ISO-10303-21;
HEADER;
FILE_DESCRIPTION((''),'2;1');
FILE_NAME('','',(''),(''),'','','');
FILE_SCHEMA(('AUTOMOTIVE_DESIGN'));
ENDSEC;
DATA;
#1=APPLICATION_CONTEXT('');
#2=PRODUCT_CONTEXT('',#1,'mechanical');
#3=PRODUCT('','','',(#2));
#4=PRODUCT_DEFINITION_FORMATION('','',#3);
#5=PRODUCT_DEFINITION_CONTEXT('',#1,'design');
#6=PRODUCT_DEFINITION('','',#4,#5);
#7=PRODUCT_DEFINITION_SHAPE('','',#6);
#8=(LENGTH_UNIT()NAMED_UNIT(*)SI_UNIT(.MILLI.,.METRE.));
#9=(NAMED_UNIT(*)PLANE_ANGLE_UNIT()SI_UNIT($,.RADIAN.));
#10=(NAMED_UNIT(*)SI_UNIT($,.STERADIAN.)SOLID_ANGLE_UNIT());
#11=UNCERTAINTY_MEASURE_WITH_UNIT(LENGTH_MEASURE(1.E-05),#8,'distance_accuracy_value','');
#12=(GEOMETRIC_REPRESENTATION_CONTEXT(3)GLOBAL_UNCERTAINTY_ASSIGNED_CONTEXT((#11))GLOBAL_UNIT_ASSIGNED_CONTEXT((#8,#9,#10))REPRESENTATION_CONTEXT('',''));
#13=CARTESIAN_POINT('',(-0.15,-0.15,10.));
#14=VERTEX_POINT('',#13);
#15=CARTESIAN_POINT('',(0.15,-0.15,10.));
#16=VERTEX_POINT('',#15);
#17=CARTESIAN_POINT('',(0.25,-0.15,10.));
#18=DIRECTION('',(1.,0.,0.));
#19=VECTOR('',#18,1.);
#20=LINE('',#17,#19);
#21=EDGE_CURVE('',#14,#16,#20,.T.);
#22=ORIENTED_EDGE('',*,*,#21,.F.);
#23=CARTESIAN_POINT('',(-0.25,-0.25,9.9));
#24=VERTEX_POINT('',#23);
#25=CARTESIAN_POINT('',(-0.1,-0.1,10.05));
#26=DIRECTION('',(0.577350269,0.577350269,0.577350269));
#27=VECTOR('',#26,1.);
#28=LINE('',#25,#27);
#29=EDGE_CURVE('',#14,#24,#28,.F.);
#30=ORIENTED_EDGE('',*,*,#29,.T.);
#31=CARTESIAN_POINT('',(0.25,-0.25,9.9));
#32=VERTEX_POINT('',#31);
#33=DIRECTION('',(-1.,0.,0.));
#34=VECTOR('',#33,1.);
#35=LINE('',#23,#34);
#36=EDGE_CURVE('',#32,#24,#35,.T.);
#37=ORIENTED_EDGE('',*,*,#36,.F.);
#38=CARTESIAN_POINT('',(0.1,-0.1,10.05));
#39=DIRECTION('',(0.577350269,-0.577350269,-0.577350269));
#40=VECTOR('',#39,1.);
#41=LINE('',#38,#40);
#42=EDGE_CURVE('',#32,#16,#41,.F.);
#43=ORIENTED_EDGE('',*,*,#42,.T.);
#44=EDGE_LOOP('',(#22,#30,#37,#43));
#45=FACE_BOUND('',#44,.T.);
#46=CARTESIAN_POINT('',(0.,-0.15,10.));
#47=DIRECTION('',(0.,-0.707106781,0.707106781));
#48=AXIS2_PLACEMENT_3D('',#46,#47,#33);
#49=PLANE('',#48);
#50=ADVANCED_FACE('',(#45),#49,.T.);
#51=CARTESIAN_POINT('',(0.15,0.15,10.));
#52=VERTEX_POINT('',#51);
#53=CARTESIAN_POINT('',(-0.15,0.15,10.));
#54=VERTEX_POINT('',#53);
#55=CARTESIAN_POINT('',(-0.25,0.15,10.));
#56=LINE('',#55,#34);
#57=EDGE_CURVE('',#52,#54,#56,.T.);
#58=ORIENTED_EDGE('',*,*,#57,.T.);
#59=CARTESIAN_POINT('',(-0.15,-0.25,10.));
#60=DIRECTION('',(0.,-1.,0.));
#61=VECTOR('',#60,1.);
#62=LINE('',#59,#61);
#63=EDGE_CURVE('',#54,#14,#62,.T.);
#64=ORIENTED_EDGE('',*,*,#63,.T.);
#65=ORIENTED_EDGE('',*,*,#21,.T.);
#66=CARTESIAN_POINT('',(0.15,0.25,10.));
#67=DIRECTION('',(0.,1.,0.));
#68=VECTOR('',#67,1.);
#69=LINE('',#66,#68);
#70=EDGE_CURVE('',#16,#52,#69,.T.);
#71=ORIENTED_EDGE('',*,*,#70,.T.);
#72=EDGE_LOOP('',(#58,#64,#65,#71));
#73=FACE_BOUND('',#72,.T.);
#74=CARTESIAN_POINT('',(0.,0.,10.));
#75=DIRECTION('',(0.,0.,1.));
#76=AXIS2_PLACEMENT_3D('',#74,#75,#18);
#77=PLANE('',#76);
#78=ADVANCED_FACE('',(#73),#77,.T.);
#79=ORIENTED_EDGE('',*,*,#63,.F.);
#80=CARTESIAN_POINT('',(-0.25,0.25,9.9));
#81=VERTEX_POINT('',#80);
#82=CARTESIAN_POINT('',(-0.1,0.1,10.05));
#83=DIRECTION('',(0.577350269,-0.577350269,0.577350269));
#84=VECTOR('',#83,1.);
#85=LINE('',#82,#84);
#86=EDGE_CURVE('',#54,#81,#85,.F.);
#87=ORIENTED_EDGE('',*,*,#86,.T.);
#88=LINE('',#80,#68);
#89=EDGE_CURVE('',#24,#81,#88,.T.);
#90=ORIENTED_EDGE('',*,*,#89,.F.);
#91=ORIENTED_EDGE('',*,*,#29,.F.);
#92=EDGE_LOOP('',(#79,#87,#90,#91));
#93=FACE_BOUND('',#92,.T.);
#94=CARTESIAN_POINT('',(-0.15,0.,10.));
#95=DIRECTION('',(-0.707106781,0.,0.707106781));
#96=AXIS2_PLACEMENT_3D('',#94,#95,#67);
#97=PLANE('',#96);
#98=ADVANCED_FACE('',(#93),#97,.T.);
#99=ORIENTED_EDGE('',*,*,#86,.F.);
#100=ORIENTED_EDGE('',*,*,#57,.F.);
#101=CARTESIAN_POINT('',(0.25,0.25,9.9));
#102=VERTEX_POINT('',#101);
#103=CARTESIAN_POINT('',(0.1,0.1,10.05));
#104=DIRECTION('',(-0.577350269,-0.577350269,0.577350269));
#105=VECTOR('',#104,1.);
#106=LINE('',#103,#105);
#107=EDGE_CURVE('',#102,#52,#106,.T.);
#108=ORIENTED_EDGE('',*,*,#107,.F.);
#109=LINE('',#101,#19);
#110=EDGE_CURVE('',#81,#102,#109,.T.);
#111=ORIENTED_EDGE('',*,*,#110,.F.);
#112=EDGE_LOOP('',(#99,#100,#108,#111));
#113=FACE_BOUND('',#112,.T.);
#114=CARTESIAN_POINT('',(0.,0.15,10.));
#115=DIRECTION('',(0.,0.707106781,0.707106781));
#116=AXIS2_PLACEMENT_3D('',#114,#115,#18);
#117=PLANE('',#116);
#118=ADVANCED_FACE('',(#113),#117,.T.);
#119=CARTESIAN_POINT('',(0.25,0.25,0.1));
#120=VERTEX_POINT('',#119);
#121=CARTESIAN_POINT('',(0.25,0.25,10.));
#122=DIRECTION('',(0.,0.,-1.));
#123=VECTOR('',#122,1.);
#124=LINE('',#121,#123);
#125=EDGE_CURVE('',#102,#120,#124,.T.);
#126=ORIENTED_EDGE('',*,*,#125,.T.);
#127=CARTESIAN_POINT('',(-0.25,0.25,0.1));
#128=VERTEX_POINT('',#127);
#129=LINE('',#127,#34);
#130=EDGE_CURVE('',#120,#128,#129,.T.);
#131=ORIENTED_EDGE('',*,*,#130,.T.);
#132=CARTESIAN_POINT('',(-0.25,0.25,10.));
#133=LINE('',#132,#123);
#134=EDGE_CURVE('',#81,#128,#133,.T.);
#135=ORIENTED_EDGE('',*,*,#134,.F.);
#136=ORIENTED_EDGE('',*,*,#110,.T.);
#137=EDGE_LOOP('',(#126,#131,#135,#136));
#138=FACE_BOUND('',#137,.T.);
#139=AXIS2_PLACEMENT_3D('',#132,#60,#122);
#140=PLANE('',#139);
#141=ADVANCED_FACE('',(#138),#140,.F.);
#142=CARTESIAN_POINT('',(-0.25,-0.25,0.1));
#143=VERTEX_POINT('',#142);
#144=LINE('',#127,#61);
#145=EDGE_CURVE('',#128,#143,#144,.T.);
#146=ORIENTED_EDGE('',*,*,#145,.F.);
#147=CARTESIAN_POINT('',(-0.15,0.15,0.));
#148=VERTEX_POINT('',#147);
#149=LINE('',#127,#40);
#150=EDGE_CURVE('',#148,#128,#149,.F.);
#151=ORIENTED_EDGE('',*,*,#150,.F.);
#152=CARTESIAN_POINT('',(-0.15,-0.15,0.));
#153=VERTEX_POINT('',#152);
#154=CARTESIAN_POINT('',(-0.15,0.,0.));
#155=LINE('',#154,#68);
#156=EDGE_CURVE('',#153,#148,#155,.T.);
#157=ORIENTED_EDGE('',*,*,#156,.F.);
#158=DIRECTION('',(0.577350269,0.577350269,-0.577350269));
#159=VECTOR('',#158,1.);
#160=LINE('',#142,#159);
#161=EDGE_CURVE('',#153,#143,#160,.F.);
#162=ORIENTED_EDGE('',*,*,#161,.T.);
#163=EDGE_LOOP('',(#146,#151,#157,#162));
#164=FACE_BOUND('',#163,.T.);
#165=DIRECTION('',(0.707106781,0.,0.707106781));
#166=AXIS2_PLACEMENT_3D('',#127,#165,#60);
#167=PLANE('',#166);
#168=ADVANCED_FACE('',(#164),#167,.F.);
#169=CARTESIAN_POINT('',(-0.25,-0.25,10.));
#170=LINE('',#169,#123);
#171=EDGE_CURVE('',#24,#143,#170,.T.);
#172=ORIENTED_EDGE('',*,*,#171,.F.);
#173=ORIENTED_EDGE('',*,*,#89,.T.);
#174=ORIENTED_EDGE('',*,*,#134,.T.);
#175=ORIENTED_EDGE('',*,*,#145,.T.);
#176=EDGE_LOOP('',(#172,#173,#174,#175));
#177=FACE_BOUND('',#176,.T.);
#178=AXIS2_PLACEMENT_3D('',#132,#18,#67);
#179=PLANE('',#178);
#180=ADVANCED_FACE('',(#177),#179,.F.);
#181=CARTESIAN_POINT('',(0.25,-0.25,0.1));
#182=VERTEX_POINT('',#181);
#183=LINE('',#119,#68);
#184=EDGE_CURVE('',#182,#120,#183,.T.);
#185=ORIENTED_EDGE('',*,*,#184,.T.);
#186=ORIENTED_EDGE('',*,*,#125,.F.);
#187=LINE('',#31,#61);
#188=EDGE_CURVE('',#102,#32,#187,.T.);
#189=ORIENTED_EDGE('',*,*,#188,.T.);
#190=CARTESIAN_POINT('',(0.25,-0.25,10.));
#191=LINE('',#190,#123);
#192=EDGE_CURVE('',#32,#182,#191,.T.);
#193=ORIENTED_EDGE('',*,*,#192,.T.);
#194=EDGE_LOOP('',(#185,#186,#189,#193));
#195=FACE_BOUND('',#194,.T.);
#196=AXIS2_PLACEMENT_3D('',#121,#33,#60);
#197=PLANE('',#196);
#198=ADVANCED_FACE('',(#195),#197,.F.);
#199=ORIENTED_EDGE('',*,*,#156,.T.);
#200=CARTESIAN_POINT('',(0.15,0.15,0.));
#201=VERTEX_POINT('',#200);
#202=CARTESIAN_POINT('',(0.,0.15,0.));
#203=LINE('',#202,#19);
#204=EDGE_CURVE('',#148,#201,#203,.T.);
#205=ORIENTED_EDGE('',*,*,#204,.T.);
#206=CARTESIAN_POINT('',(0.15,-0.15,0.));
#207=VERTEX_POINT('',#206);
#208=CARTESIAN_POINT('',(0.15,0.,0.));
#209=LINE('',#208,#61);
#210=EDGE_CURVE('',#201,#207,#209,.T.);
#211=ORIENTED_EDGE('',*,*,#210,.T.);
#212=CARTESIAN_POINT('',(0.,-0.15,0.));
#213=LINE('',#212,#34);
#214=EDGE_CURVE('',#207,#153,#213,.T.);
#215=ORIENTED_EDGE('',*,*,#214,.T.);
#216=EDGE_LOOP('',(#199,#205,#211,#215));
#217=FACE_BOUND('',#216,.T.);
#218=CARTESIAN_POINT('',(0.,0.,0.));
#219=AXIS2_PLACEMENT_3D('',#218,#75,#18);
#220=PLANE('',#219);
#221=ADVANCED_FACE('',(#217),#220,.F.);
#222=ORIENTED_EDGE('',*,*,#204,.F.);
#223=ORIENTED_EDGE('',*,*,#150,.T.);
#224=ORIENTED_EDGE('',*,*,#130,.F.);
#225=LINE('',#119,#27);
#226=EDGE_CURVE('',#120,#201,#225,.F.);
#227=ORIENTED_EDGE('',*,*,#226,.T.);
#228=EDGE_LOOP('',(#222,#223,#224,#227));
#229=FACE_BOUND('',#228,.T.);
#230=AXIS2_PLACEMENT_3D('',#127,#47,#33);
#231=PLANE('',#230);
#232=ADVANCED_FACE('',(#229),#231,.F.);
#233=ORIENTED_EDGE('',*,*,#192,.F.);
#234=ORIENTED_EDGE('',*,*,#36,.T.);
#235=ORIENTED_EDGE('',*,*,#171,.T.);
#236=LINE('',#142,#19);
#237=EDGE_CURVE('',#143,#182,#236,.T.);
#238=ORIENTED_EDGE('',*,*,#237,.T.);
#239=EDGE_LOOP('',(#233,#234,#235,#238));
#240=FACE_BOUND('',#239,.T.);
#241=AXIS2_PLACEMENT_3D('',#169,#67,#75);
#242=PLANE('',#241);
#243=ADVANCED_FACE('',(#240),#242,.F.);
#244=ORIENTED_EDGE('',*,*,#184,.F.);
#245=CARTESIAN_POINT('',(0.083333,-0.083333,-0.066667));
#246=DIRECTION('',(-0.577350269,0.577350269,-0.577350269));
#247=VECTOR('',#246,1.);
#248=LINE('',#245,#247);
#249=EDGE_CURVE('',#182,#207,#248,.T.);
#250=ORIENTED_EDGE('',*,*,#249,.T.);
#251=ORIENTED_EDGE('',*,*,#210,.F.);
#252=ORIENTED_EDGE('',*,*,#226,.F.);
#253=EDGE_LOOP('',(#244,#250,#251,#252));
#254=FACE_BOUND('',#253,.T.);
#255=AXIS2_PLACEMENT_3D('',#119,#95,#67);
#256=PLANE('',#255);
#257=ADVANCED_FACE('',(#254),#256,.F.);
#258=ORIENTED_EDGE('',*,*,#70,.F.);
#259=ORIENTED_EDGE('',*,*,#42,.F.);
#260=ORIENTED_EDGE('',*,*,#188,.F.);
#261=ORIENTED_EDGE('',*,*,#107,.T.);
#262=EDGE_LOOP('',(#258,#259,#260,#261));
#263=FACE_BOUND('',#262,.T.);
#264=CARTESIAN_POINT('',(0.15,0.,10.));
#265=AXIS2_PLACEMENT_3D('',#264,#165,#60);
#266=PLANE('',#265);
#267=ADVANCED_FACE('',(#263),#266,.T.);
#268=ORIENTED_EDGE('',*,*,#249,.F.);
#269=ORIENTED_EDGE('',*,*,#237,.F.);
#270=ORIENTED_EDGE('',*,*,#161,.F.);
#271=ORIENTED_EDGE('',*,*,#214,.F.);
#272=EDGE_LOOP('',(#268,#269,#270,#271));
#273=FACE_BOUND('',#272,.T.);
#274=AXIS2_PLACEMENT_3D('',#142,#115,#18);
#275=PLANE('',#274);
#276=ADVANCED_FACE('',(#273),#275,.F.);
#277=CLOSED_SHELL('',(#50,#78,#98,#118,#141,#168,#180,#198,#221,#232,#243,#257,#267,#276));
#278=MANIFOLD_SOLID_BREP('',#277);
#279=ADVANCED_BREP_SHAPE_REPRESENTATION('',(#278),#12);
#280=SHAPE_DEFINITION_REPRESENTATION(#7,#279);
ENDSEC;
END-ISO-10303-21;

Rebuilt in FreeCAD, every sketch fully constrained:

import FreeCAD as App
import Part
import Sketcher
from FreeCAD import Vector


def edges_at(feature, points):
    """Names of the edges that pass closest to the given points."""
    edges = feature.Shape.Edges
    near = lambda p: min(range(len(edges)), key=lambda i: edges[i].distToShape(Part.Vertex(*p))[0])
    return sorted({f"Edge{near(p) + 1}" for p in points})


def add_polygon(sketch, points):
    """Adds a closed chain of lines whose ends are joined by coincident constraints."""
    first, n = sketch.GeometryCount, len(points)
    for a, b in zip(points, points[1:] + points[:1]):
        sketch.addGeometry(Part.LineSegment(App.Vector(*a, 0), App.Vector(*b, 0)), False)
    for i in range(n):
        sketch.addConstraint(Sketcher.Constraint("Coincident", first + i, 2, first + (i + 1) % n, 1))

doc = App.newDocument("Part")
body = doc.addObject("PartDesign::Body", "Body")

# Sketch on XY plane
sketch1 = body.newObject("Sketcher::SketchObject", "Sketch")
sketch1.AttachmentSupport = (doc.getObject("XY_Plane"), [""])
sketch1.MapMode = "FlatFace"
add_polygon(sketch1, [(-0.2, 0.2), (-0.2, -0.2), (0.2, -0.2), (0.2, 0.2)])  # lines 0-3
sketch1.addConstraint(Sketcher.Constraint("Vertical", 0))
sketch1.addConstraint(Sketcher.Constraint("Horizontal", 1))
sketch1.addConstraint(Sketcher.Constraint("Vertical", 2))
sketch1.addConstraint(Sketcher.Constraint("Horizontal", 3))
sketch1.addConstraint(Sketcher.Constraint("Symmetric", 0, 2, 2, 2, -1, 1))
sketch1.addConstraint(Sketcher.Constraint("Equal", 3, 0))
sketch1.addConstraint(Sketcher.Constraint("DistanceX", 1, 1, 1, 2, 0.5))
pad1 = body.newObject("PartDesign::Pad", "Pad")
pad1.Profile = sketch1
pad1.Length = 10
doc.recompute()

chamfer = body.newObject("PartDesign::Chamfer", "Chamfer")
chamfer.Base = (pad1, edges_at(pad1, [
    (-0.25, 0, 10),
    (0, -0.25, 10),
    (0.25, 0, 10),
    (0, -0.25, 0),
    (-0.25, 0, 0),
    (0, 0.25, 0),
    (0.25, 0, 0),
    (0, 0.25, 10),
]))
chamfer.Size = 0.1

doc.recompute()
